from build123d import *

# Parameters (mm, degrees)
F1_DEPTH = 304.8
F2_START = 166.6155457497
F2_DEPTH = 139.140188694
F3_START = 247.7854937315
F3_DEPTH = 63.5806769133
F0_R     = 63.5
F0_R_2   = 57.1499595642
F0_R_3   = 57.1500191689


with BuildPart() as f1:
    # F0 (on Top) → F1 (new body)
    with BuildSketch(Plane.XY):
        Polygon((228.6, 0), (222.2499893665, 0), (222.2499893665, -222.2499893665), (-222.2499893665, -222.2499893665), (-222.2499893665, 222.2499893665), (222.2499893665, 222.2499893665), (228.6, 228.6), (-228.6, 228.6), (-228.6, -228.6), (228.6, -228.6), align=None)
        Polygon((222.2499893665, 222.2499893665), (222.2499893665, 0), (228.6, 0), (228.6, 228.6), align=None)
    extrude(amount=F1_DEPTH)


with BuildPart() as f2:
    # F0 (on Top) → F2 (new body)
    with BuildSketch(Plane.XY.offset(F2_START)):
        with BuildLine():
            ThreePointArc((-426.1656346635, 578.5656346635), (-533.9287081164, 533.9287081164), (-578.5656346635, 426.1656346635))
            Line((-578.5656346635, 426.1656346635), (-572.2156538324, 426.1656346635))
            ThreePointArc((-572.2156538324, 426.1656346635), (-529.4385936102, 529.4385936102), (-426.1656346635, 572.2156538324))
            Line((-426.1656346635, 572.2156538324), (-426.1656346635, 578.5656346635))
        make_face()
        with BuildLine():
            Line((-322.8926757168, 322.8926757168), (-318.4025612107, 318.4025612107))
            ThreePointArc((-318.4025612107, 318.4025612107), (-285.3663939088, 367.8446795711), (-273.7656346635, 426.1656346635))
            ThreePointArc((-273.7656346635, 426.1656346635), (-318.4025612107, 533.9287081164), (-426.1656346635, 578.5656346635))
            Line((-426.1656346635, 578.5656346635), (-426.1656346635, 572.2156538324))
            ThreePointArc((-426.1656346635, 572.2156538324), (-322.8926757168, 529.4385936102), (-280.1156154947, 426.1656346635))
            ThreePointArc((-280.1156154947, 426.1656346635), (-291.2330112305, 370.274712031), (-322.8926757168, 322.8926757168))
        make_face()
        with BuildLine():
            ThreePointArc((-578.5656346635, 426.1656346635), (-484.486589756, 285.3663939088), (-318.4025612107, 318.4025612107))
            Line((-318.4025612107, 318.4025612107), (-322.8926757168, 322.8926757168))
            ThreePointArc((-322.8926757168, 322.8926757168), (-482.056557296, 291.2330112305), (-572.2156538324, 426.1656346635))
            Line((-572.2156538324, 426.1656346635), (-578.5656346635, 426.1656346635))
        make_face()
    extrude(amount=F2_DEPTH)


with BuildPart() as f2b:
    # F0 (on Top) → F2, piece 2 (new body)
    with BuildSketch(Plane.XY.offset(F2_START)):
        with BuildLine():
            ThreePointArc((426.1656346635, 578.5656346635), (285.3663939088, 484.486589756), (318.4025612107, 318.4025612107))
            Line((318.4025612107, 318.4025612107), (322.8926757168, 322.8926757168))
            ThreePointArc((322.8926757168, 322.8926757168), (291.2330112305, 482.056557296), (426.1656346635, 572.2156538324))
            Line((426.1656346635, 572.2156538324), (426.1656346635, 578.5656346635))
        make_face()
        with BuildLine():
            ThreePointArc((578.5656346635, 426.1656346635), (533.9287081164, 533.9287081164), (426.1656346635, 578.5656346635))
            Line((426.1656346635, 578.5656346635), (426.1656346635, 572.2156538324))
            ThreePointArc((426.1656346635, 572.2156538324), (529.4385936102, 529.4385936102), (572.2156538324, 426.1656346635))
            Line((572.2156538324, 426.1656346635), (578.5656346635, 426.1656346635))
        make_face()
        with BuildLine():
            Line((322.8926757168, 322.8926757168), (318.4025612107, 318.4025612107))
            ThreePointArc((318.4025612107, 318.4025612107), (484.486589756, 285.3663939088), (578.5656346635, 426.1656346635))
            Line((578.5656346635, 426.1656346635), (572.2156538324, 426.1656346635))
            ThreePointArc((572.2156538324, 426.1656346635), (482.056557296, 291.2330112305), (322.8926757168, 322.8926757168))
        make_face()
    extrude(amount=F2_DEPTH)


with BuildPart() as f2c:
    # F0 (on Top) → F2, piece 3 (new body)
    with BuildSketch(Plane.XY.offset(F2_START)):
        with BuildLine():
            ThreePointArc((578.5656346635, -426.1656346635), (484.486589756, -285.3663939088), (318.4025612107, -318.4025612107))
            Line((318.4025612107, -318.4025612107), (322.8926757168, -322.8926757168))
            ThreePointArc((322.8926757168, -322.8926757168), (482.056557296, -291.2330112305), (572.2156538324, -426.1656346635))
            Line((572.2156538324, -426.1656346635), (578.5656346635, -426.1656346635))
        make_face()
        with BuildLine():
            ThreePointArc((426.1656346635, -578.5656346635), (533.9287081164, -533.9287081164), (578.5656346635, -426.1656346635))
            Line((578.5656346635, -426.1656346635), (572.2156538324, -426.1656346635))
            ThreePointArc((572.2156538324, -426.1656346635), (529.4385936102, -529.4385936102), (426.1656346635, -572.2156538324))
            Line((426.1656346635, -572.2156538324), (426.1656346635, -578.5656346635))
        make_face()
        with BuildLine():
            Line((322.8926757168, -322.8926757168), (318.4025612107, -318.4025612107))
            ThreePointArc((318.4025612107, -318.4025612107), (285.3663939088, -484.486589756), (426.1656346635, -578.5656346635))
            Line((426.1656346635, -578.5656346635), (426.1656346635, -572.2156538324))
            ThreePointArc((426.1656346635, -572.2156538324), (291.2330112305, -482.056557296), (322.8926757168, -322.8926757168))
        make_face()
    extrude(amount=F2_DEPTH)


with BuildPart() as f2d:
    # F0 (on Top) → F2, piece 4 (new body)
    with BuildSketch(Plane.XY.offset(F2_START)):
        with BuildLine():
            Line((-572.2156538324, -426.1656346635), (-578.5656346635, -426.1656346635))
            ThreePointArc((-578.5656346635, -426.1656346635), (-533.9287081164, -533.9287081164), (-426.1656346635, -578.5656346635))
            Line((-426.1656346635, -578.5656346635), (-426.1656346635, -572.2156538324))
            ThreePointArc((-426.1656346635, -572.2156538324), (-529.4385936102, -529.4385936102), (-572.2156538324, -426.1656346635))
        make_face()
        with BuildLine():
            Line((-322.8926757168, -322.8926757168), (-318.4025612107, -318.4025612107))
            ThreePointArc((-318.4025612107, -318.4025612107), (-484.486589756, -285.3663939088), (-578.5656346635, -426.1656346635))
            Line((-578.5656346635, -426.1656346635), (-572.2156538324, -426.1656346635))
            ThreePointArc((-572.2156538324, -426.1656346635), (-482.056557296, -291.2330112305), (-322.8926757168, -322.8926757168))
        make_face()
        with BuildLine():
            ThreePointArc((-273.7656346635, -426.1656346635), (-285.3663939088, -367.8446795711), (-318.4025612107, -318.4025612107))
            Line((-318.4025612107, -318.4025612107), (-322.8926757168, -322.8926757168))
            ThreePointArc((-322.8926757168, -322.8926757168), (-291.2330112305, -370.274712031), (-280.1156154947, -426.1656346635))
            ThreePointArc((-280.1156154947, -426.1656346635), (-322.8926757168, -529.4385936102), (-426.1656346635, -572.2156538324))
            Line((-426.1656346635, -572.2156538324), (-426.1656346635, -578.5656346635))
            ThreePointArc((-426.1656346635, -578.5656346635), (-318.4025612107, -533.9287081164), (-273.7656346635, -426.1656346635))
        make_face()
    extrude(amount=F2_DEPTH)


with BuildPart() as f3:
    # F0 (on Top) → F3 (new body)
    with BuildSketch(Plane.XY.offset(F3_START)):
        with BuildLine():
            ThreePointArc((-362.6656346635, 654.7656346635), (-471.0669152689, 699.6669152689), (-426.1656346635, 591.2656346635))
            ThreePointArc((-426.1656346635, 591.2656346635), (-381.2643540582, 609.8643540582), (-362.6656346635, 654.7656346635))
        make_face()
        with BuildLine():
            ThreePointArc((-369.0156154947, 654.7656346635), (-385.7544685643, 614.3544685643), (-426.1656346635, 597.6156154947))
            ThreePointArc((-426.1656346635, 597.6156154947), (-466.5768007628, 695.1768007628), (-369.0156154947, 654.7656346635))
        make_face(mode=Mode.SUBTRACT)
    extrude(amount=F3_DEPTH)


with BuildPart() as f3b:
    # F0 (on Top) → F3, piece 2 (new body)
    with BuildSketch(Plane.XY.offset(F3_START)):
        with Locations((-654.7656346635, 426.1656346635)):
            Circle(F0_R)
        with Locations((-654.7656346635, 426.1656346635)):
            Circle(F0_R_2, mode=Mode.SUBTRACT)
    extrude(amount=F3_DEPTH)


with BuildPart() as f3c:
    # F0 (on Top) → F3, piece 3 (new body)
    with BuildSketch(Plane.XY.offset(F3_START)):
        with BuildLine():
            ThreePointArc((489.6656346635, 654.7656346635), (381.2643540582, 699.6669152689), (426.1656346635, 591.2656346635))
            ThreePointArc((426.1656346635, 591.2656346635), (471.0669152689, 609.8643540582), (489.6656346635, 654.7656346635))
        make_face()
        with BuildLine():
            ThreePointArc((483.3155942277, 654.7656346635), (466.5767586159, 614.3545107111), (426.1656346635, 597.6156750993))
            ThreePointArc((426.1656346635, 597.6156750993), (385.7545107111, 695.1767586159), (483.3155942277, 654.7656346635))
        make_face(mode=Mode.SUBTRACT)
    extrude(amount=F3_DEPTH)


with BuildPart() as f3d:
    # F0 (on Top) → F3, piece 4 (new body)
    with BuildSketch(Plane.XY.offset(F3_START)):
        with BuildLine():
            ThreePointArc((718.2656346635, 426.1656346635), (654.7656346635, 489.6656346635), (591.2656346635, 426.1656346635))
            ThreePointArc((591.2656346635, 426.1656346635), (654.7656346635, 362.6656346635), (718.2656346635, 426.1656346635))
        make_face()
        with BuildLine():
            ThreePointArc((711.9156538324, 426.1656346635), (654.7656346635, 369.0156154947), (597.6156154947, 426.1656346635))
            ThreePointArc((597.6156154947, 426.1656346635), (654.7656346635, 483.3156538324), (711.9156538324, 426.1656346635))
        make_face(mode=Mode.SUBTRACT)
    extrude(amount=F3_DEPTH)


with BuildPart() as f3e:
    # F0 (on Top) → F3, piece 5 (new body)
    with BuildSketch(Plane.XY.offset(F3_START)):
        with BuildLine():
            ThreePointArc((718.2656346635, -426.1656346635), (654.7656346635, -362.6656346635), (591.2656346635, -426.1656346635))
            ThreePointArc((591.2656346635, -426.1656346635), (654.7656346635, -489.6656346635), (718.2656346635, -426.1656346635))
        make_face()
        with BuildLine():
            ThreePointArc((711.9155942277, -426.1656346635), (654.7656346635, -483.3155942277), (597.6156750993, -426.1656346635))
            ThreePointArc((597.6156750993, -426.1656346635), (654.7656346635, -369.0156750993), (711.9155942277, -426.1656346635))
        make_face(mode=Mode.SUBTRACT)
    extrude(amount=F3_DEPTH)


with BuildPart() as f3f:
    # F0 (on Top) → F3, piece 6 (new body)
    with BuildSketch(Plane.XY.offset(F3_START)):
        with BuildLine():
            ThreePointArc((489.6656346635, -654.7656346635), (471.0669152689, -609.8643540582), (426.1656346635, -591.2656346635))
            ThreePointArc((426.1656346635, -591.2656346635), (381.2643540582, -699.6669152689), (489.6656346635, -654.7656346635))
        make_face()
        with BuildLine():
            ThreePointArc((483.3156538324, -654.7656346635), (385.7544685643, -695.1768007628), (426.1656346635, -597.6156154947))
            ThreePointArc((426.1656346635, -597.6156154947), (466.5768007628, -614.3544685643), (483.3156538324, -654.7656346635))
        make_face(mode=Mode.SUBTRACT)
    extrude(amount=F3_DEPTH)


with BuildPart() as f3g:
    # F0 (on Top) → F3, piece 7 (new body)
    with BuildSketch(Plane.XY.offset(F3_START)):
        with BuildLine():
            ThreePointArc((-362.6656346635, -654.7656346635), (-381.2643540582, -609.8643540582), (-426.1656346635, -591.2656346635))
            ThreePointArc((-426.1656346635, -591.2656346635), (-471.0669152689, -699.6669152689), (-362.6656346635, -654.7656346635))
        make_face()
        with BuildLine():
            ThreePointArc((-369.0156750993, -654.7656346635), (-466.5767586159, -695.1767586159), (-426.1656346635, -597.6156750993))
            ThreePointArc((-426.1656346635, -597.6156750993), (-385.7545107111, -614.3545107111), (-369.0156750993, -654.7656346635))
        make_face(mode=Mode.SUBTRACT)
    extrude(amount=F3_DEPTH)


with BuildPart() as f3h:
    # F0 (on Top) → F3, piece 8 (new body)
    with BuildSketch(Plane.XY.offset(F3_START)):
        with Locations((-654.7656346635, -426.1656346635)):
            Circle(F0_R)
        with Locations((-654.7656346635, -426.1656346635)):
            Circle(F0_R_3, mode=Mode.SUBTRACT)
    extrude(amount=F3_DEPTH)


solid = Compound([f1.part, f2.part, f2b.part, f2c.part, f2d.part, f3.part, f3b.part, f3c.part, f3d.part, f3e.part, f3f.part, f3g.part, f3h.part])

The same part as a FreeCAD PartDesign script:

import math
import FreeCAD as App
import Part
import Sketcher
from FreeCAD import Vector
Q = App.Units.Quantity


def add_polygon(sketch, points):
    """Adds a closed chain of lines whose ends are joined by coincident constraints."""
    first, n = sketch.GeometryCount, len(points)
    for a, b in zip(points, points[1:] + points[:1]):
        sketch.addGeometry(Part.LineSegment(App.Vector(*a, 0), App.Vector(*b, 0)), False)
    for i in range(n):
        sketch.addConstraint(Sketcher.Constraint("Coincident", first + i, 2, first + (i + 1) % n, 1))

doc = App.newDocument("Part")
body = doc.addObject("PartDesign::Body", "Body")

sketch1 = body.newObject("Sketcher::SketchObject", "Sketch")
sketch1.AttachmentSupport = (doc.getObject("XY_Plane"), [""])
sketch1.MapMode = "FlatFace"
add_polygon(sketch1, [(228.6, 228.6), (-228.6, 228.6), (-228.6, -228.6), (228.6, -228.6)])
add_polygon(sketch1, [(222.249989, -222.249989), (-222.249989, -222.249989), (-222.249989, 222.249989), (222.249989, 222.249989)])
sketch1.addConstraint([
    Sketcher.Constraint("Horizontal", 0),
    Sketcher.Constraint("Vertical", 1),
    Sketcher.Constraint("Horizontal", 2),
    Sketcher.Constraint("Vertical", 3),
    Sketcher.Constraint("Horizontal", 4),
    Sketcher.Constraint("Vertical", 5),
    Sketcher.Constraint("Horizontal", 6),
    Sketcher.Constraint("Vertical", 7),
    Sketcher.Constraint("Symmetric", 0, 2, 2, 2, -1, 1),
    Sketcher.Constraint("Symmetric", 4, 2, 6, 2, -1, 1),
    Sketcher.Constraint("Equal", 2, 1),
    Sketcher.Constraint("Equal", 6, 5),
    Sketcher.Constraint("DistanceX", 0, 2, 0, 1, Q("18 in")),
    Sketcher.Constraint("DistanceX", 4, 2, 4, 1, 444.499979),
])
pad1 = body.newObject("PartDesign::Pad", "Pad")
pad1.Profile = sketch1
pad1.Length = Q("12 in")
body2 = doc.addObject("PartDesign::Body", "Body001")

sketch2 = body2.newObject("Sketcher::SketchObject", "Sketch001")
sketch2.AttachmentSupport = (doc.getObject("XY_Plane001"), [""])
sketch2.MapMode = "FlatFace"
sketch2.AttachmentOffset = App.Placement(Vector(0, 0, 166.615546), App.Rotation())
sketch2.addGeometry([
    Part.Circle(Vector(-426.165635, 426.165635, 0), Vector(0, 0, 1), 152.4),
    Part.ArcOfCircle(Part.Circle(Vector(-426.165635, 426.165635, 0), Vector(0, 0, 1), 146.050019), math.radians(90), math.radians(180)),
    Part.ArcOfCircle(Part.Circle(Vector(-426.165635, 426.165635, 0), Vector(0, 0, 1), 146.050019), math.radians(0), math.radians(90)),
    Part.ArcOfCircle(Part.Circle(Vector(-426.165635, 426.165635, 0), Vector(0, 0, 1), 146.050019), math.radians(-45), math.radians(0)),
    Part.ArcOfCircle(Part.Circle(Vector(-426.165635, 426.165635, 0), Vector(0, 0, 1), 146.050019), math.radians(-180), math.radians(-45)),
], False)
sketch2.addConstraint([
    Sketcher.Constraint("Tangent", 1, 1, 2, 2),
    Sketcher.Constraint("Tangent", 2, 1, 3, 2),
    Sketcher.Constraint("Tangent", 3, 1, 4, 2),
    Sketcher.Constraint("Tangent", 4, 1, 1, 2),
    Sketcher.Constraint("Coincident", 1, 3, 0, 3),
    Sketcher.Constraint("Equal", 1, 2),
    Sketcher.Constraint("Horizontal", 4, 3, 2, 1),
    Sketcher.Constraint("Horizontal", 2, 1, 4, 1),
    Sketcher.Constraint("Vertical", 4, 3, 1, 1),
    Sketcher.Constraint("Diameter", 0, Q("12 in")),
    Sketcher.Constraint("Radius", 1, 146.050019),
    Sketcher.Constraint("DistanceX", 3, 1, 2, 1, 42.77706),
    Sketcher.Constraint("DistanceX", 0, 3, -1, 1, 426.165635),
    Sketcher.Constraint("DistanceY", -1, 1, 0, 3, 426.165635),
])
pad2 = body2.newObject("PartDesign::Pad", "Pad001")
pad2.Profile = sketch2
pad2.Length = 139.140189
body3 = doc.addObject("PartDesign::Body", "Body002")

sketch3 = body3.newObject("Sketcher::SketchObject", "Sketch002")
sketch3.AttachmentSupport = (doc.getObject("XY_Plane002"), [""])
sketch3.MapMode = "FlatFace"
sketch3.AttachmentOffset = App.Placement(Vector(0, 0, 166.615546), App.Rotation())
sketch3.addGeometry([
    Part.ArcOfCircle(Part.Circle(Vector(426.165635, 426.165635, 0), Vector(0, 0, 1), 152.4), math.radians(90), math.radians(360)),
    Part.ArcOfCircle(Part.Circle(Vector(426.165635, 426.165635, 0), Vector(0, 0, 1), 152.4), math.radians(0), math.radians(90)),
    Part.ArcOfCircle(Part.Circle(Vector(426.165635, 426.165635, 0), Vector(0, 0, 1), 146.050019), math.radians(0), math.radians(90)),
    Part.ArcOfCircle(Part.Circle(Vector(426.165635, 426.165635, 0), Vector(0, 0, 1), 146.050019), math.radians(90), math.radians(360)),
], False)
sketch3.addConstraint([
    Sketcher.Constraint("Tangent", 0, 1, 1, 2),
    Sketcher.Constraint("Coincident", 1, 1, 0, 2),
    Sketcher.Constraint("Tangent", 2, 1, 3, 2),
    Sketcher.Constraint("Coincident", 3, 1, 2, 2),
    Sketcher.Constraint("Coincident", 2, 3, 0, 3),
    Sketcher.Constraint("Horizontal", 3, 3, 1, 1),
    Sketcher.Constraint("Horizontal", 1, 1, 2, 1),
    Sketcher.Constraint("Vertical", 3, 3, 0, 1),
    Sketcher.Constraint("Vertical", 0, 1, 3, 1),
    Sketcher.Constraint("Radius", 0, Q("6 in")),
    Sketcher.Constraint("Radius", 2, 146.050019),
    Sketcher.Constraint("DistanceX", -1, 1, 0, 3, 426.165635),
    Sketcher.Constraint("DistanceY", -1, 1, 0, 3, 426.165635),
])
pad3 = body3.newObject("PartDesign::Pad", "Pad002")
pad3.Profile = sketch3
pad3.Length = 139.140189
body4 = doc.addObject("PartDesign::Body", "Body003")

sketch4 = body4.newObject("Sketcher::SketchObject", "Sketch003")
sketch4.AttachmentSupport = (doc.getObject("XY_Plane003"), [""])
sketch4.MapMode = "FlatFace"
sketch4.AttachmentOffset = App.Placement(Vector(0, 0, 166.615546), App.Rotation())
sketch4.addGeometry([
    Part.ArcOfCircle(Part.Circle(Vector(426.165635, -426.165635, 0), Vector(0, 0, 1), 152.4), math.radians(0), math.radians(270)),
    Part.ArcOfCircle(Part.Circle(Vector(426.165635, -426.165635, 0), Vector(0, 0, 1), 152.4), math.radians(-90), math.radians(0)),
    Part.ArcOfCircle(Part.Circle(Vector(426.165635, -426.165635, 0), Vector(0, 0, 1), 146.050019), math.radians(-90), math.radians(0)),
    Part.ArcOfCircle(Part.Circle(Vector(426.165635, -426.165635, 0), Vector(0, 0, 1), 146.050019), math.radians(0), math.radians(270)),
], False)
sketch4.addConstraint([
    Sketcher.Constraint("Tangent", 0, 1, 1, 2),
    Sketcher.Constraint("Coincident", 1, 1, 0, 2),
    Sketcher.Constraint("Tangent", 2, 1, 3, 2),
    Sketcher.Constraint("Coincident", 3, 1, 2, 2),
    Sketcher.Constraint("Coincident", 2, 3, 0, 3),
    Sketcher.Constraint("Horizontal", 3, 3, 0, 1),
    Sketcher.Constraint("Horizontal", 0, 1, 3, 1),
    Sketcher.Constraint("Vertical", 3, 3, 1, 1),
    Sketcher.Constraint("Vertical", 1, 1, 2, 1),
    Sketcher.Constraint("Radius", 0, Q("6 in")),
    Sketcher.Constraint("Radius", 2, 146.050019),
    Sketcher.Constraint("DistanceX", -1, 1, 0, 3, 426.165635),
    Sketcher.Constraint("DistanceY", 0, 3, -1, 1, 426.165635),
])
pad4 = body4.newObject("PartDesign::Pad", "Pad003")
pad4.Profile = sketch4
pad4.Length = 139.140189
body5 = doc.addObject("PartDesign::Body", "Body004")

sketch5 = body5.newObject("Sketcher::SketchObject", "Sketch004")
sketch5.AttachmentSupport = (doc.getObject("XY_Plane004"), [""])
sketch5.MapMode = "FlatFace"
sketch5.AttachmentOffset = App.Placement(Vector(0, 0, 166.615546), App.Rotation())
sketch5.addGeometry([
    Part.ArcOfCircle(Part.Circle(Vector(-426.165635, -426.165635, 0), Vector(0, 0, 1), 152.4), math.radians(180), math.radians(270)),
    Part.ArcOfCircle(Part.Circle(Vector(-426.165635, -426.165635, 0), Vector(0, 0, 1), 152.4), math.radians(-90), math.radians(180)),
    Part.ArcOfCircle(Part.Circle(Vector(-426.165635, -426.165635, 0), Vector(0, 0, 1), 146.050019), math.radians(180), math.radians(270)),
    Part.ArcOfCircle(Part.Circle(Vector(-426.165635, -426.165635, 0), Vector(0, 0, 1), 146.050019), math.radians(45), math.radians(180)),
    Part.ArcOfCircle(Part.Circle(Vector(-426.165635, -426.165635, 0), Vector(0, 0, 1), 146.050019), math.radians(0), math.radians(45)),
    Part.ArcOfCircle(Part.Circle(Vector(-426.165635, -426.165635, 0), Vector(0, 0, 1), 146.050019), math.radians(-90), math.radians(0)),
], False)
sketch5.addConstraint([
    Sketcher.Constraint("Tangent", 0, 1, 1, 2),
    Sketcher.Constraint("Coincident", 1, 1, 0, 2),
    Sketcher.Constraint("Tangent", 2, 1, 3, 2),
    Sketcher.Constraint("Tangent", 3, 1, 4, 2),
    Sketcher.Constraint("Tangent", 4, 1, 5, 2),
    Sketcher.Constraint("Tangent", 5, 1, 2, 2),
    Sketcher.Constraint("Coincident", 2, 3, 0, 3),
    Sketcher.Constraint("Equal", 2, 3),
    Sketcher.Constraint("Horizontal", 5, 3, 0, 1),
    Sketcher.Constraint("Horizontal", 0, 1, 2, 1),
    Sketcher.Constraint("Horizontal", 2, 1, 4, 1),
    Sketcher.Constraint("Vertical", 5, 3, 1, 1),
    Sketcher.Constraint("Vertical", 1, 1, 5, 1),
    Sketcher.Constraint("Radius", 0, Q("6 in")),
    Sketcher.Constraint("Radius", 2, 146.050019),
    Sketcher.Constraint("DistanceX", 2, 3, 3, 1, 103.272959),
    Sketcher.Constraint("DistanceX", 0, 3, -1, 1, 426.165635),
    Sketcher.Constraint("DistanceY", 0, 3, -1, 1, 426.165635),
])
pad5 = body5.newObject("PartDesign::Pad", "Pad004")
pad5.Profile = sketch5
pad5.Length = 139.140189
body6 = doc.addObject("PartDesign::Body", "Body005")

sketch6 = body6.newObject("Sketcher::SketchObject", "Sketch005")
sketch6.AttachmentSupport = (doc.getObject("XY_Plane005"), [""])
sketch6.MapMode = "FlatFace"
sketch6.AttachmentOffset = App.Placement(Vector(0, 0, 247.785494), App.Rotation())
sketch6.addGeometry([
    Part.ArcOfCircle(Part.Circle(Vector(-426.165635, 654.765635, 0), Vector(0, 0, 1), 63.5), math.radians(0), math.radians(270)),
    Part.ArcOfCircle(Part.Circle(Vector(-426.165635, 654.765635, 0), Vector(0, 0, 1), 63.5), math.radians(-90), math.radians(0)),
    Part.ArcOfCircle(Part.Circle(Vector(-426.165635, 654.765635, 0), Vector(0, 0, 1), 57.150019), math.radians(0), math.radians(270)),
    Part.ArcOfCircle(Part.Circle(Vector(-426.165635, 654.765635, 0), Vector(0, 0, 1), 57.150019), math.radians(-90), math.radians(0)),
], False)
sketch6.addConstraint([
    Sketcher.Constraint("Tangent", 0, 1, 1, 2),
    Sketcher.Constraint("Coincident", 1, 1, 0, 2),
    Sketcher.Constraint("Tangent", 2, 1, 3, 2),
    Sketcher.Constraint("Coincident", 3, 1, 2, 2),
    Sketcher.Constraint("Coincident", 2, 3, 0, 3),
    Sketcher.Constraint("Horizontal", 3, 3, 0, 1),
    Sketcher.Constraint("Horizontal", 0, 1, 2, 1),
    Sketcher.Constraint("Vertical", 3, 3, 1, 1),
    Sketcher.Constraint("Vertical", 1, 1, 3, 1),
    Sketcher.Constraint("Radius", 0, Q("2.5 in")),
    Sketcher.Constraint("Radius", 2, 57.150019),
    Sketcher.Constraint("DistanceX", 0, 3, -1, 1, 426.165635),
    Sketcher.Constraint("DistanceY", -1, 1, 0, 3, 654.765635),
])
pad6 = body6.newObject("PartDesign::Pad", "Pad005")
pad6.Profile = sketch6
pad6.Length = 63.580677
body7 = doc.addObject("PartDesign::Body", "Body006")

sketch7 = body7.newObject("Sketcher::SketchObject", "Sketch006")
sketch7.AttachmentSupport = (doc.getObject("XY_Plane006"), [""])
sketch7.MapMode = "FlatFace"
sketch7.AttachmentOffset = App.Placement(Vector(0, 0, 247.785494), App.Rotation())
sketch7.addGeometry([
    Part.Circle(Vector(-654.765635, 426.165635, 0), Vector(0, 0, 1), 63.5),
    Part.Circle(Vector(-654.765635, 426.165635, 0), Vector(0, 0, 1), 57.14996),
], False)
sketch7.addConstraint([
    Sketcher.Constraint("Coincident", 1, 3, 0, 3),
    Sketcher.Constraint("Diameter", 0, Q("5 in")),
    Sketcher.Constraint("Diameter", 1, 114.299919),
    Sketcher.Constraint("DistanceX", 0, 3, -1, 1, 654.765635),
    Sketcher.Constraint("DistanceY", -1, 1, 0, 3, 426.165635),
])
pad7 = body7.newObject("PartDesign::Pad", "Pad006")
pad7.Profile = sketch7
pad7.Length = 63.580677
body8 = doc.addObject("PartDesign::Body", "Body007")

sketch8 = body8.newObject("Sketcher::SketchObject", "Sketch007")
sketch8.AttachmentSupport = (doc.getObject("XY_Plane007"), [""])
sketch8.MapMode = "FlatFace"
sketch8.AttachmentOffset = App.Placement(Vector(0, 0, 247.785494), App.Rotation())
sketch8.addGeometry([
    Part.Circle(Vector(426.165635, 654.765635, 0), Vector(0, 0, 1), 63.5),
    Part.ArcOfCircle(Part.Circle(Vector(426.165635, 654.765635, 0), Vector(0, 0, 1), 57.14996), math.radians(0), math.radians(270)),
    Part.ArcOfCircle(Part.Circle(Vector(426.165635, 654.765635, 0), Vector(0, 0, 1), 57.14996), math.radians(-90), math.radians(0)),
], False)
sketch8.addConstraint([
    Sketcher.Constraint("Tangent", 1, 1, 2, 2),
    Sketcher.Constraint("Coincident", 2, 1, 1, 2),
    Sketcher.Constraint("Coincident", 1, 3, 0, 3),
    Sketcher.Constraint("Horizontal", 2, 3, 1, 1),
    Sketcher.Constraint("Vertical", 1, 3, 2, 1),
    Sketcher.Constraint("Diameter", 0, Q("5 in")),
    Sketcher.Constraint("Radius", 1, 57.14996),
    Sketcher.Constraint("DistanceX", -1, 1, 0, 3, 426.165635),
    Sketcher.Constraint("DistanceY", -1, 1, 0, 3, 654.765635),
])
pad8 = body8.newObject("PartDesign::Pad", "Pad007")
pad8.Profile = sketch8
pad8.Length = 63.580677
body9 = doc.addObject("PartDesign::Body", "Body008")

sketch9 = body9.newObject("Sketcher::SketchObject", "Sketch008")
sketch9.AttachmentSupport = (doc.getObject("XY_Plane008"), [""])
sketch9.MapMode = "FlatFace"
sketch9.AttachmentOffset = App.Placement(Vector(0, 0, 247.785494), App.Rotation())
sketch9.addGeometry([
    Part.Circle(Vector(654.765635, 426.165635, 0), Vector(0, 0, 1), 63.5),
    Part.Circle(Vector(654.765635, 426.165635, 0), Vector(0, 0, 1), 57.150019),
], False)
sketch9.addConstraint([
    Sketcher.Constraint("Coincident", 1, 3, 0, 3),
    Sketcher.Constraint("Diameter", 0, Q("5 in")),
    Sketcher.Constraint("Diameter", 1, 114.300038),
    Sketcher.Constraint("DistanceX", -1, 1, 0, 3, 654.765635),
    Sketcher.Constraint("DistanceY", -1, 1, 0, 3, 426.165635),
])
pad9 = body9.newObject("PartDesign::Pad", "Pad008")
pad9.Profile = sketch9
pad9.Length = 63.580677
body10 = doc.addObject("PartDesign::Body", "Body009")

sketch10 = body10.newObject("Sketcher::SketchObject", "Sketch009")
sketch10.AttachmentSupport = (doc.getObject("XY_Plane009"), [""])
sketch10.MapMode = "FlatFace"
sketch10.AttachmentOffset = App.Placement(Vector(0, 0, 247.785494), App.Rotation())
sketch10.addGeometry([
    Part.Circle(Vector(654.765635, -426.165635, 0), Vector(0, 0, 1), 63.5),
    Part.Circle(Vector(654.765635, -426.165635, 0), Vector(0, 0, 1), 57.14996),
], False)
sketch10.addConstraint([
    Sketcher.Constraint("Coincident", 1, 3, 0, 3),
    Sketcher.Constraint("Diameter", 0, Q("5 in")),
    Sketcher.Constraint("Diameter", 1, 114.299919),
    Sketcher.Constraint("DistanceX", -1, 1, 0, 3, 654.765635),
    Sketcher.Constraint("DistanceY", 0, 3, -1, 1, 426.165635),
])
pad10 = body10.newObject("PartDesign::Pad", "Pad009")
pad10.Profile = sketch10
pad10.Length = 63.580677
body11 = doc.addObject("PartDesign::Body", "Body010")

sketch11 = body11.newObject("Sketcher::SketchObject", "Sketch010")
sketch11.AttachmentSupport = (doc.getObject("XY_Plane010"), [""])
sketch11.MapMode = "FlatFace"
sketch11.AttachmentOffset = App.Placement(Vector(0, 0, 247.785494), App.Rotation())
sketch11.addGeometry([
    Part.Circle(Vector(426.165635, -654.765635, 0), Vector(0, 0, 1), 63.5),
    Part.ArcOfCircle(Part.Circle(Vector(426.165635, -654.765635, 0), Vector(0, 0, 1), 57.150019), math.radians(0), math.radians(90)),
    Part.ArcOfCircle(Part.Circle(Vector(426.165635, -654.765635, 0), Vector(0, 0, 1), 57.150019), math.radians(90), math.radians(360)),
], False)
sketch11.addConstraint([
    Sketcher.Constraint("Tangent", 1, 1, 2, 2),
    Sketcher.Constraint("Coincident", 2, 1, 1, 2),
    Sketcher.Constraint("Coincident", 1, 3, 0, 3),
    Sketcher.Constraint("Horizontal", 2, 3, 1, 1),
    Sketcher.Constraint("Vertical", 1, 3, 2, 1),
    Sketcher.Constraint("Diameter", 0, Q("5 in")),
    Sketcher.Constraint("Radius", 1, 57.150019),
    Sketcher.Constraint("DistanceX", -1, 1, 0, 3, 426.165635),
    Sketcher.Constraint("DistanceY", 0, 3, -1, 1, 654.765635),
])
pad11 = body11.newObject("PartDesign::Pad", "Pad010")
pad11.Profile = sketch11
pad11.Length = 63.580677
body12 = doc.addObject("PartDesign::Body", "Body011")

sketch12 = body12.newObject("Sketcher::SketchObject", "Sketch011")
sketch12.AttachmentSupport = (doc.getObject("XY_Plane011"), [""])
sketch12.MapMode = "FlatFace"
sketch12.AttachmentOffset = App.Placement(Vector(0, 0, 247.785494), App.Rotation())
sketch12.addGeometry([
    Part.ArcOfCircle(Part.Circle(Vector(-426.165635, -654.765635, 0), Vector(0, 0, 1), 63.5), math.radians(0), math.radians(90)),
    Part.ArcOfCircle(Part.Circle(Vector(-426.165635, -654.765635, 0), Vector(0, 0, 1), 63.5), math.radians(90), math.radians(360)),
    Part.ArcOfCircle(Part.Circle(Vector(-426.165635, -654.765635, 0), Vector(0, 0, 1), 57.14996), math.radians(0), math.radians(90)),
    Part.ArcOfCircle(Part.Circle(Vector(-426.165635, -654.765635, 0), Vector(0, 0, 1), 57.14996), math.radians(90), math.radians(360)),
], False)
sketch12.addConstraint([
    Sketcher.Constraint("Tangent", 0, 1, 1, 2),
    Sketcher.Constraint("Coincident", 1, 1, 0, 2),
    Sketcher.Constraint("Tangent", 2, 1, 3, 2),
    Sketcher.Constraint("Coincident", 3, 1, 2, 2),
    Sketcher.Constraint("Coincident", 2, 3, 0, 3),
    Sketcher.Constraint("Horizontal", 3, 3, 0, 1),
    Sketcher.Constraint("Horizontal", 0, 1, 2, 1),
    Sketcher.Constraint("Vertical", 3, 3, 1, 1),
    Sketcher.Constraint("Vertical", 1, 1, 3, 1),
    Sketcher.Constraint("Radius", 0, Q("2.5 in")),
    Sketcher.Constraint("Radius", 2, 57.14996),
    Sketcher.Constraint("DistanceX", 0, 3, -1, 1, 426.165635),
    Sketcher.Constraint("DistanceY", 0, 3, -1, 1, 654.765635),
])
pad12 = body12.newObject("PartDesign::Pad", "Pad011")
pad12.Profile = sketch12
pad12.Length = 63.580677
body13 = doc.addObject("PartDesign::Body", "Body012")

sketch13 = body13.newObject("Sketcher::SketchObject", "Sketch012")
sketch13.AttachmentSupport = (doc.getObject("XY_Plane012"), [""])
sketch13.MapMode = "FlatFace"
sketch13.AttachmentOffset = App.Placement(Vector(0, 0, 247.785494), App.Rotation())
sketch13.addGeometry([
    Part.Circle(Vector(-654.765635, -426.165635, 0), Vector(0, 0, 1), 63.5),
    Part.Circle(Vector(-654.765635, -426.165635, 0), Vector(0, 0, 1), 57.150019),
], False)
sketch13.addConstraint([
    Sketcher.Constraint("Coincident", 1, 3, 0, 3),
    Sketcher.Constraint("Diameter", 0, Q("5 in")),
    Sketcher.Constraint("Diameter", 1, 114.300038),
    Sketcher.Constraint("DistanceX", 0, 3, -1, 1, 654.765635),
    Sketcher.Constraint("DistanceY", 0, 3, -1, 1, 426.165635),
])
pad13 = body13.newObject("PartDesign::Pad", "Pad012")
pad13.Profile = sketch13
pad13.Length = 63.580677

doc.recompute()
